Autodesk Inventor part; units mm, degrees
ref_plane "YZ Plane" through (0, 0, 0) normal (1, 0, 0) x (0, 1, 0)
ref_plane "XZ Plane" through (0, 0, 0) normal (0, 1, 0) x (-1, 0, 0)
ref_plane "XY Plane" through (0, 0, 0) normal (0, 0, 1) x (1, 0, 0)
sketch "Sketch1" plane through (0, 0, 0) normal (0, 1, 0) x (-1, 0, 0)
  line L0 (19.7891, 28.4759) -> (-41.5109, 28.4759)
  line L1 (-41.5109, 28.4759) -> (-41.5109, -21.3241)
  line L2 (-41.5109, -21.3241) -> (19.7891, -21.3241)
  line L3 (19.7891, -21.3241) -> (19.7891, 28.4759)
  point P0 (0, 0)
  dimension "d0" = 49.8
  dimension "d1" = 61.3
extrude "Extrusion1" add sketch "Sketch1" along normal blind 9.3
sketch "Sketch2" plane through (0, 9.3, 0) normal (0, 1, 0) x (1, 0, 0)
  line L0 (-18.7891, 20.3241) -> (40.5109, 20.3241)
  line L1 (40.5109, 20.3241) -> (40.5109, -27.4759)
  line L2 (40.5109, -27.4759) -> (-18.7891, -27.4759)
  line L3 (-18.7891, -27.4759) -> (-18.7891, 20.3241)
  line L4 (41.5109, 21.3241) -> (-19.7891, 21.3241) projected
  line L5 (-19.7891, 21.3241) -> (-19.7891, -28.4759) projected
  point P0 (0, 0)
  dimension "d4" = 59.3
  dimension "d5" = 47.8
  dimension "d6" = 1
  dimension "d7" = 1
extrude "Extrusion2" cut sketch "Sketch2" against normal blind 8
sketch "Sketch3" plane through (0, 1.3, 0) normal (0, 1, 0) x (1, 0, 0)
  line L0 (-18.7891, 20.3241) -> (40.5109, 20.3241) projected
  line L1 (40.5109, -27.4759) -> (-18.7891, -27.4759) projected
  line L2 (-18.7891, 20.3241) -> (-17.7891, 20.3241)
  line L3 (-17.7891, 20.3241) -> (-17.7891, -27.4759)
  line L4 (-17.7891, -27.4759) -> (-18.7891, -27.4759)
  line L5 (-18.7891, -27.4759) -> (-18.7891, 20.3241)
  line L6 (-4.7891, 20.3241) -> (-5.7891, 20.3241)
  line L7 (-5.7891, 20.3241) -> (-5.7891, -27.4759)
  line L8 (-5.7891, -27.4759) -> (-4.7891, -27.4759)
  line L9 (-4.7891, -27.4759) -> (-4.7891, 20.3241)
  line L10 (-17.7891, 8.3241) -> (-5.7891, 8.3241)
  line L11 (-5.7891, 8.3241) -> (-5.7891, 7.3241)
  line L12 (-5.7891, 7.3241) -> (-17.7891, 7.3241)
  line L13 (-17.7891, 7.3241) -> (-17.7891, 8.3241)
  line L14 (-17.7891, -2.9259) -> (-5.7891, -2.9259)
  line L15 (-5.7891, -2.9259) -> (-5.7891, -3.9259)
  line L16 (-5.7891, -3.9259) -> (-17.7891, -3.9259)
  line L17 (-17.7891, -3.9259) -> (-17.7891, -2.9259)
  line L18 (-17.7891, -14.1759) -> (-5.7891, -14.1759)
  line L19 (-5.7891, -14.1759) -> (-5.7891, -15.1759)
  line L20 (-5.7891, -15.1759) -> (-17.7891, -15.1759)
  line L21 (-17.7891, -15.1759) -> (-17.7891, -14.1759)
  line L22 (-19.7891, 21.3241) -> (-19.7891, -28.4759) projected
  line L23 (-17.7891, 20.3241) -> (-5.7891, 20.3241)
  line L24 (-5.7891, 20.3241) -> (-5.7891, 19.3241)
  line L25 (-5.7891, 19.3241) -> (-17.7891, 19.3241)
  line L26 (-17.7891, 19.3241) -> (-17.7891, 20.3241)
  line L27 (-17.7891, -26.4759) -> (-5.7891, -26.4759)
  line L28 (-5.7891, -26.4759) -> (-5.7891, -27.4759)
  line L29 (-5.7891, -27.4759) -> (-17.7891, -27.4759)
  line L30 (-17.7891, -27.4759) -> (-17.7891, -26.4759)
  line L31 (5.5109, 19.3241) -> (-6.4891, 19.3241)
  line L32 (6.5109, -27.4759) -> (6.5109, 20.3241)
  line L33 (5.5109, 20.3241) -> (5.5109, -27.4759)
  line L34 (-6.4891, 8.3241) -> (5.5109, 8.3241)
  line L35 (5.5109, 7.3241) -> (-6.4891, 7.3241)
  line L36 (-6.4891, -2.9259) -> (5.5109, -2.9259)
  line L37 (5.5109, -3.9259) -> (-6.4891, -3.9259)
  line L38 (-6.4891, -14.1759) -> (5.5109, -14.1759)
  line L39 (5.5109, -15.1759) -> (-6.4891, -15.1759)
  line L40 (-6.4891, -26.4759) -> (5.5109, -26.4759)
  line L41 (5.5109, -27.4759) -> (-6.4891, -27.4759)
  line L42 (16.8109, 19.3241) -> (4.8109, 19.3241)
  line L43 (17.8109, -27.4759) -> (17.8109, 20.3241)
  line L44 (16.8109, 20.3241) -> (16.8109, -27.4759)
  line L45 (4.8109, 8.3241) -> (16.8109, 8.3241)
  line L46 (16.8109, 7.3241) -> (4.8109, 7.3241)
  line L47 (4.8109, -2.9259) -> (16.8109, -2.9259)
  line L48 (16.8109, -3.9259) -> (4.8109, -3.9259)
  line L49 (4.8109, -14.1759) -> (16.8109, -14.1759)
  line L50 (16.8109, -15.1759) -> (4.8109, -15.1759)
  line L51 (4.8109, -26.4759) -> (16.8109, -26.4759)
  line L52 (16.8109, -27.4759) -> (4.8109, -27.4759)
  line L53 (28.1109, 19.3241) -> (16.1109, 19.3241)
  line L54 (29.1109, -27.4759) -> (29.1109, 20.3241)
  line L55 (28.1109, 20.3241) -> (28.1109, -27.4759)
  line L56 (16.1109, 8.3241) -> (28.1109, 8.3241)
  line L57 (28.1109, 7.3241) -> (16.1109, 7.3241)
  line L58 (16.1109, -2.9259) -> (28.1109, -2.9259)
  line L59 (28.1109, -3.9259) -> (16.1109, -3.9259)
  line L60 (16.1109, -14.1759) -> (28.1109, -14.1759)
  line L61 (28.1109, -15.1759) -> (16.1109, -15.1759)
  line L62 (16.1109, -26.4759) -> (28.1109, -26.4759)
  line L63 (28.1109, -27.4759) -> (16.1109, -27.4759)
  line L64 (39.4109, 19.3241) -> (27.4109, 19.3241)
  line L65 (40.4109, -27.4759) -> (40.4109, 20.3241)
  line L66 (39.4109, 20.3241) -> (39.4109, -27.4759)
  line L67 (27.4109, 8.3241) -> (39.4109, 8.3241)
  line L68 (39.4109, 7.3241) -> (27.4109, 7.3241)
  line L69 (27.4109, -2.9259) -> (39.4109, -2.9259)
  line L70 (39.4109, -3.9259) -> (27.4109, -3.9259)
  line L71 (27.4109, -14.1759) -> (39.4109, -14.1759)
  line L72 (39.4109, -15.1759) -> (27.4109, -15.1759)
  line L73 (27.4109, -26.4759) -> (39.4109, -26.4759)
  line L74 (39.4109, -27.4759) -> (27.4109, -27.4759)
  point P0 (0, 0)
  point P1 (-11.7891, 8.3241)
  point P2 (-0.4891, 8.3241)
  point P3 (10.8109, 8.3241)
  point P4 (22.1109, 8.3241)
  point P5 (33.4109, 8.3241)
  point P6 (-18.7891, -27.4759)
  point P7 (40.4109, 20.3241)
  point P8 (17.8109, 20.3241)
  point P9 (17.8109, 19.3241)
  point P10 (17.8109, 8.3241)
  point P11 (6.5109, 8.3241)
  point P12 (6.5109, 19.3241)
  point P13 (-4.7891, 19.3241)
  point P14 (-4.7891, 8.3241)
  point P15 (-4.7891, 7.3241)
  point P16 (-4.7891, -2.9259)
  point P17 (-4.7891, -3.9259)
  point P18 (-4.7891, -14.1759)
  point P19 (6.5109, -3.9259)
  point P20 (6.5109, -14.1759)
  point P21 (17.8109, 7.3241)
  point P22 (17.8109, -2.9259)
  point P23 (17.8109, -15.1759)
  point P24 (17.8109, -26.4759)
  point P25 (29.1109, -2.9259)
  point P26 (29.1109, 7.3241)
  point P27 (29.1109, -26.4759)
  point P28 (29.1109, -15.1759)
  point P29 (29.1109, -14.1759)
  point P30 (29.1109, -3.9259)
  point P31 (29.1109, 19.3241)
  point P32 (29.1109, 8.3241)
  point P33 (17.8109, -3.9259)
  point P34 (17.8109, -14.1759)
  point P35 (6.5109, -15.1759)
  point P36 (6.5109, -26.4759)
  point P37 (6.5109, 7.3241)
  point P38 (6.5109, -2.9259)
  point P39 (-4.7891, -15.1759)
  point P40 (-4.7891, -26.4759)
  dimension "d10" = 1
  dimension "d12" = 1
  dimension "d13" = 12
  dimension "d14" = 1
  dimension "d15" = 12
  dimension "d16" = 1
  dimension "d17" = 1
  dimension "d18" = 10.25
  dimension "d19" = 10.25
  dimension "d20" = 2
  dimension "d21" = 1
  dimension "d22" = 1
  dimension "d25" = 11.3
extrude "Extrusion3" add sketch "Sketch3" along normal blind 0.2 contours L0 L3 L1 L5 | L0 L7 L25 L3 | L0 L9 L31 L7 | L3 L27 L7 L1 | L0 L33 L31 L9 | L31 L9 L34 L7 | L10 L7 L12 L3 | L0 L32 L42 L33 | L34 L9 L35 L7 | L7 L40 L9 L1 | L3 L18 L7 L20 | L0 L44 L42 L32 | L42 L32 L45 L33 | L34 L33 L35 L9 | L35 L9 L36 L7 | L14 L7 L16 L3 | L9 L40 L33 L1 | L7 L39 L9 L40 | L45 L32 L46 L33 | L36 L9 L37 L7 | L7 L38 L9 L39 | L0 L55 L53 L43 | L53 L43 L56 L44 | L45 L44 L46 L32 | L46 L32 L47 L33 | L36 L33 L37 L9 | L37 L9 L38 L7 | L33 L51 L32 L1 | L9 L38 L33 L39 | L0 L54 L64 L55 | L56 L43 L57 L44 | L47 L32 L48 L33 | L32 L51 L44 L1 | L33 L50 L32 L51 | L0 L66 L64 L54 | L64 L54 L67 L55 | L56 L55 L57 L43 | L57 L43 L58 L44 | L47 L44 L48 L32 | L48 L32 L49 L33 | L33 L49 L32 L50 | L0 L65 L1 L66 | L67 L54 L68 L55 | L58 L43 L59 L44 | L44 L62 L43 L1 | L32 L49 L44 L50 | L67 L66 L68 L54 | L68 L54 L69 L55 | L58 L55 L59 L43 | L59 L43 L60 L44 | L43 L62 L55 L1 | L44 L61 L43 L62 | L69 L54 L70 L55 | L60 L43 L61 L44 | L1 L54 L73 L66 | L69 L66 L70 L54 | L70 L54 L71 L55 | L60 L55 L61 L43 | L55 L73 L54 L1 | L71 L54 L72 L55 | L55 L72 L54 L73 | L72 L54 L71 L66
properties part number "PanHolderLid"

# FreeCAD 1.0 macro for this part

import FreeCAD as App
import Part
import Sketcher
from FreeCAD import Vector
Q = App.Units.Quantity

doc = App.newDocument("Part")
body = doc.addObject("PartDesign::Body", "Body")

# Sketch on XZ plane
sketch1 = doc.addObject("Sketcher::SketchObject", "Sketch")
body.addObject(sketch1)
sketch1.AttachmentSupport = (doc.XZ_Plane, [""])
sketch1.MapMode = "FlatFace"
sketch1.addGeometry([
    Part.LineSegment(Vector(-19.7891, -21.3241, 0), Vector(-19.7891, 28.4759, 0)),
    Part.LineSegment(Vector(-19.7891, 28.4759, 0), Vector(41.5109, 28.4759, 0)),
    Part.LineSegment(Vector(41.5109, 28.4759, 0), Vector(41.5109, -21.3241, 0)),
    Part.LineSegment(Vector(41.5109, -21.3241, 0), Vector(-19.7891, -21.3241, 0)),
], False)
sketch1.addConstraint([
    Sketcher.Constraint("Coincident", 0, 2, 1, 1),
    Sketcher.Constraint("Coincident", 1, 2, 2, 1),
    Sketcher.Constraint("Coincident", 2, 2, 3, 1),
    Sketcher.Constraint("Coincident", 3, 2, 0, 1),
    Sketcher.Constraint("Vertical", 0),
    Sketcher.Constraint("Horizontal", 1),
    Sketcher.Constraint("Vertical", 2),
    Sketcher.Constraint("Horizontal", 3),
    Sketcher.Constraint("DistanceX", 1, 1, 1, 2, Q("61.3 mm")),
    Sketcher.Constraint("DistanceY", 0, 1, 0, 2, Q("49.8 mm")),
    Sketcher.Constraint("DistanceX", 0, 2, -1, 1, Q("19.789 mm")),
    Sketcher.Constraint("DistanceY", -1, 1, 0, 2, Q("28.476 mm")),
])
pad1 = doc.addObject("PartDesign::Pad", "Pad")
body.addObject(pad1)
pad1.Profile = sketch1
pad1.Length = 9.3
pad1.Reversed = True

# Sketch on XZ plane
sketch2 = doc.addObject("Sketcher::SketchObject", "Sketch001")
body.addObject(sketch2)
sketch2.AttachmentSupport = (doc.XZ_Plane, [""])
sketch2.MapMode = "FlatFace"
sketch2.AttachmentOffset = App.Placement(Vector(0, 0, -9.3), App.Rotation())
sketch2.addGeometry([
    Part.LineSegment(Vector(40.5109, -20.3241, 0), Vector(-18.7891, -20.3241, 0)),
    Part.LineSegment(Vector(-18.7891, -20.3241, 0), Vector(-18.7891, 27.4759, 0)),
    Part.LineSegment(Vector(-18.7891, 27.4759, 0), Vector(40.5109, 27.4759, 0)),
    Part.LineSegment(Vector(40.5109, 27.4759, 0), Vector(40.5109, -20.3241, 0)),
], False)
sketch2.addConstraint([
    Sketcher.Constraint("Coincident", 0, 2, 1, 1),
    Sketcher.Constraint("Coincident", 1, 2, 2, 1),
    Sketcher.Constraint("Coincident", 2, 2, 3, 1),
    Sketcher.Constraint("Coincident", 3, 2, 0, 1),
    Sketcher.Constraint("Horizontal", 0),
    Sketcher.Constraint("Vertical", 1),
    Sketcher.Constraint("Horizontal", 2),
    Sketcher.Constraint("Vertical", 3),
    Sketcher.Constraint("DistanceX", 0, 2, 0, 1, Q("59.3 mm")),
    Sketcher.Constraint("DistanceY", 1, 1, 1, 2, Q("47.8 mm")),
    Sketcher.Constraint("DistanceX", 0, 2, -1, 1, Q("18.789 mm")),
    Sketcher.Constraint("DistanceY", 0, 2, -1, 1, Q("20.324 mm")),
])
pocket1 = doc.addObject("PartDesign::Pocket", "Pocket")
body.addObject(pocket1)
pocket1.Profile = sketch2
pocket1.Length = 8
pocket1.Reversed = True

# Sketch on XZ plane
sketch3 = doc.addObject("Sketcher::SketchObject", "Sketch002")
body.addObject(sketch3)
sketch3.AttachmentSupport = (doc.XZ_Plane, [""])
sketch3.MapMode = "FlatFace"
sketch3.AttachmentOffset = App.Placement(Vector(0, 0, -1.3), App.Rotation())
sketch3.addGeometry([
    Part.LineSegment(Vector(17.8109, -19.3241, 0), Vector(16.8109, -19.3241, 0)),  # 0
    Part.LineSegment(Vector(16.8109, -19.3241, 0), Vector(16.8109, -20.3241, 0)),  # 1
    Part.LineSegment(Vector(16.8109, -20.3241, 0), Vector(-18.7891, -20.3241, 0)),  # 2
    Part.LineSegment(Vector(-18.7891, -20.3241, 0), Vector(-18.7891, 27.4759, 0)),  # 3
    Part.LineSegment(Vector(-18.7891, 27.4759, 0), Vector(40.4109, 27.4759, 0)),  # 4
    Part.LineSegment(Vector(40.4109, 27.4759, 0), Vector(40.4109, -20.3241, 0)),  # 5
    Part.LineSegment(Vector(40.4109, -20.3241, 0), Vector(17.8109, -20.3241, 0)),  # 6
    Part.LineSegment(Vector(17.8109, -20.3241, 0), Vector(17.8109, -19.3241, 0)),  # 7
    Part.LineSegment(Vector(17.8109, -19.3241, 0), Vector(28.1109, -19.3241, 0)),  # 8
    Part.LineSegment(Vector(28.1109, -19.3241, 0), Vector(28.1109, -8.3241, 0)),  # 9
    Part.LineSegment(Vector(28.1109, -8.3241, 0), Vector(17.8109, -8.3241, 0)),  # 10
    Part.LineSegment(Vector(17.8109, -8.3241, 0), Vector(17.8109, -19.3241, 0)),  # 11
    Part.LineSegment(Vector(16.8109, -19.3241, 0), Vector(16.8109, -8.3241, 0)),  # 12
    Part.LineSegment(Vector(16.8109, -8.3241, 0), Vector(6.5109, -8.3241, 0)),  # 13
    Part.LineSegment(Vector(6.5109, -8.3241, 0), Vector(6.5109, -19.3241, 0)),  # 14
    Part.LineSegment(Vector(6.5109, -19.3241, 0), Vector(16.8109, -19.3241, 0)),  # 15
    Part.LineSegment(Vector(-17.7891, -8.3241, 0), Vector(-17.7891, -19.3241, 0)),  # 16
    Part.LineSegment(Vector(-17.7891, -19.3241, 0), Vector(-5.7891, -19.3241, 0)),  # 17
    Part.LineSegment(Vector(-5.7891, -19.3241, 0), Vector(-5.7891, -8.3241, 0)),  # 18
    Part.LineSegment(Vector(-5.7891, -8.3241, 0), Vector(-17.7891, -8.3241, 0)),  # 19
    Part.LineSegment(Vector(-17.7891, 2.9259, 0), Vector(-17.7891, -7.3241, 0)),  # 20
    Part.LineSegment(Vector(-17.7891, -7.3241, 0), Vector(-5.7891, -7.3241, 0)),  # 21
    Part.LineSegment(Vector(-5.7891, -7.3241, 0), Vector(-5.7891, 2.9259, 0)),  # 22
    Part.LineSegment(Vector(-5.7891, 2.9259, 0), Vector(-17.7891, 2.9259, 0)),  # 23
    Part.LineSegment(Vector(-17.7891, 14.1759, 0), Vector(-17.7891, 3.9259, 0)),  # 24
    Part.LineSegment(Vector(-17.7891, 3.9259, 0), Vector(-5.7891, 3.9259, 0)),  # 25
    Part.LineSegment(Vector(-5.7891, 3.9259, 0), Vector(-5.7891, 14.1759, 0)),  # 26
    Part.LineSegment(Vector(-5.7891, 14.1759, 0), Vector(-17.7891, 14.1759, 0)),  # 27
    Part.LineSegment(Vector(-17.7891, 26.4759, 0), Vector(-17.7891, 15.1759, 0)),  # 28
    Part.LineSegment(Vector(-17.7891, 15.1759, 0), Vector(-5.7891, 15.1759, 0)),  # 29
    Part.LineSegment(Vector(-5.7891, 15.1759, 0), Vector(-5.7891, 26.4759, 0)),  # 30
    Part.LineSegment(Vector(-5.7891, 26.4759, 0), Vector(-17.7891, 26.4759, 0)),  # 31
    Part.LineSegment(Vector(5.5109, -19.3241, 0), Vector(5.5109, -8.3241, 0)),  # 32
    Part.LineSegment(Vector(5.5109, -8.3241, 0), Vector(-4.7891, -8.3241, 0)),  # 33
    Part.LineSegment(Vector(-4.7891, -8.3241, 0), Vector(-4.7891, -19.3241, 0)),  # 34
    Part.LineSegment(Vector(-4.7891, -19.3241, 0), Vector(5.5109, -19.3241, 0)),  # 35
    Part.LineSegment(Vector(5.5109, -7.3241, 0), Vector(5.5109, 2.9259, 0)),  # 36
    Part.LineSegment(Vector(5.5109, 2.9259, 0), Vector(-4.7891, 2.9259, 0)),  # 37
    Part.LineSegment(Vector(-4.7891, 2.9259, 0), Vector(-4.7891, -7.3241, 0)),  # 38
    Part.LineSegment(Vector(-4.7891, -7.3241, 0), Vector(5.5109, -7.3241, 0)),  # 39
    Part.LineSegment(Vector(5.5109, 3.9259, 0), Vector(5.5109, 14.1759, 0)),  # 40
    Part.LineSegment(Vector(5.5109, 14.1759, 0), Vector(-4.7891, 14.1759, 0)),  # 41
    Part.LineSegment(Vector(-4.7891, 14.1759, 0), Vector(-4.7891, 3.9259, 0)),  # 42
    Part.LineSegment(Vector(-4.7891, 3.9259, 0), Vector(5.5109, 3.9259, 0)),  # 43
    Part.LineSegment(Vector(-4.7891, 26.4759, 0), Vector(-4.7891, 15.1759, 0)),  # 44
    Part.LineSegment(Vector(-4.7891, 15.1759, 0), Vector(5.5109, 15.1759, 0)),  # 45
    Part.LineSegment(Vector(5.5109, 15.1759, 0), Vector(5.5109, 26.4759, 0)),  # 46
    Part.LineSegment(Vector(5.5109, 26.4759, 0), Vector(-4.7891, 26.4759, 0)),  # 47
    Part.LineSegment(Vector(16.8109, -7.3241, 0), Vector(16.8109, 2.9259, 0)),  # 48
    Part.LineSegment(Vector(16.8109, 2.9259, 0), Vector(6.5109, 2.9259, 0)),  # 49
    Part.LineSegment(Vector(6.5109, 2.9259, 0), Vector(6.5109, -7.3241, 0)),  # 50
    Part.LineSegment(Vector(6.5109, -7.3241, 0), Vector(16.8109, -7.3241, 0)),  # 51
    Part.LineSegment(Vector(16.8109, 3.9259, 0), Vector(16.8109, 14.1759, 0)),  # 52
    Part.LineSegment(Vector(16.8109, 14.1759, 0), Vector(6.5109, 14.1759, 0)),  # 53
    Part.LineSegment(Vector(6.5109, 14.1759, 0), Vector(6.5109, 3.9259, 0)),  # 54
    Part.LineSegment(Vector(6.5109, 3.9259, 0), Vector(16.8109, 3.9259, 0)),  # 55
    Part.LineSegment(Vector(6.5109, 26.4759, 0), Vector(6.5109, 15.1759, 0)),  # 56
    Part.LineSegment(Vector(6.5109, 15.1759, 0), Vector(16.8109, 15.1759, 0)),  # 57
    Part.LineSegment(Vector(16.8109, 15.1759, 0), Vector(16.8109, 26.4759, 0)),  # 58
    Part.LineSegment(Vector(16.8109, 26.4759, 0), Vector(6.5109, 26.4759, 0)),  # 59
    Part.LineSegment(Vector(28.1109, -7.3241, 0), Vector(28.1109, 2.9259, 0)),  # 60
    Part.LineSegment(Vector(28.1109, 2.9259, 0), Vector(17.8109, 2.9259, 0)),  # 61
    Part.LineSegment(Vector(17.8109, 2.9259, 0), Vector(17.8109, -7.3241, 0)),  # 62
    Part.LineSegment(Vector(17.8109, -7.3241, 0), Vector(28.1109, -7.3241, 0)),  # 63
    Part.LineSegment(Vector(28.1109, 3.9259, 0), Vector(28.1109, 14.1759, 0)),  # 64
    Part.LineSegment(Vector(28.1109, 14.1759, 0), Vector(17.8109, 14.1759, 0)),  # 65
    Part.LineSegment(Vector(17.8109, 14.1759, 0), Vector(17.8109, 3.9259, 0)),  # 66
    Part.LineSegment(Vector(17.8109, 3.9259, 0), Vector(28.1109, 3.9259, 0)),  # 67
    Part.LineSegment(Vector(28.1109, 15.1759, 0), Vector(28.1109, 26.4759, 0)),  # 68
    Part.LineSegment(Vector(28.1109, 26.4759, 0), Vector(17.8109, 26.4759, 0)),  # 69
    Part.LineSegment(Vector(17.8109, 26.4759, 0), Vector(17.8109, 15.1759, 0)),  # 70
    Part.LineSegment(Vector(17.8109, 15.1759, 0), Vector(28.1109, 15.1759, 0)),  # 71
    Part.LineSegment(Vector(29.1109, -8.3241, 0), Vector(29.1109, -19.3241, 0)),  # 72
    Part.LineSegment(Vector(29.1109, -19.3241, 0), Vector(39.4109, -19.3241, 0)),  # 73
    Part.LineSegment(Vector(39.4109, -19.3241, 0), Vector(39.4109, -8.3241, 0)),  # 74
    Part.LineSegment(Vector(39.4109, -8.3241, 0), Vector(29.1109, -8.3241, 0)),  # 75
    Part.LineSegment(Vector(29.1109, -7.3241, 0), Vector(39.4109, -7.3241, 0)),  # 76
    Part.LineSegment(Vector(39.4109, -7.3241, 0), Vector(39.4109, 2.9259, 0)),  # 77
    Part.LineSegment(Vector(39.4109, 2.9259, 0), Vector(29.1109, 2.9259, 0)),  # 78
    Part.LineSegment(Vector(29.1109, 2.9259, 0), Vector(29.1109, -7.3241, 0)),  # 79
    Part.LineSegment(Vector(29.1109, 3.9259, 0), Vector(39.4109, 3.9259, 0)),  # 80
    Part.LineSegment(Vector(39.4109, 3.9259, 0), Vector(39.4109, 14.1759, 0)),  # 81
    Part.LineSegment(Vector(39.4109, 14.1759, 0), Vector(29.1109, 14.1759, 0)),  # 82
    Part.LineSegment(Vector(29.1109, 14.1759, 0), Vector(29.1109, 3.9259, 0)),  # 83
    Part.LineSegment(Vector(29.1109, 15.1759, 0), Vector(39.4109, 15.1759, 0)),  # 84
    Part.LineSegment(Vector(39.4109, 15.1759, 0), Vector(39.4109, 26.4759, 0)),  # 85
    Part.LineSegment(Vector(39.4109, 26.4759, 0), Vector(29.1109, 26.4759, 0)),  # 86
    Part.LineSegment(Vector(29.1109, 26.4759, 0), Vector(29.1109, 15.1759, 0)),  # 87
], False)
sketch3.addConstraint([
    Sketcher.Constraint("Coincident", 0, 2, 1, 1),
    Sketcher.Constraint("Coincident", 1, 2, 2, 1),
    Sketcher.Constraint("Coincident", 2, 2, 3, 1),
    Sketcher.Constraint("Coincident", 3, 2, 4, 1),
    Sketcher.Constraint("Coincident", 4, 2, 5, 1),
    Sketcher.Constraint("Coincident", 5, 2, 6, 1),
    Sketcher.Constraint("Coincident", 6, 2, 7, 1),
    Sketcher.Constraint("Coincident", 7, 2, 0, 1),
    Sketcher.Constraint("Coincident", 8, 2, 9, 1),
    Sketcher.Constraint("Coincident", 9, 2, 10, 1),
    Sketcher.Constraint("Coincident", 10, 2, 11, 1),
    Sketcher.Constraint("Coincident", 11, 2, 8, 1),
    Sketcher.Constraint("Coincident", 12, 2, 13, 1),
    Sketcher.Constraint("Coincident", 13, 2, 14, 1),
    Sketcher.Constraint("Coincident", 14, 2, 15, 1),
    Sketcher.Constraint("Coincident", 15, 2, 12, 1),
    Sketcher.Constraint("Coincident", 16, 2, 17, 1),
    Sketcher.Constraint("Coincident", 17, 2, 18, 1),
    Sketcher.Constraint("Coincident", 18, 2, 19, 1),
    Sketcher.Constraint("Coincident", 19, 2, 16, 1),
    Sketcher.Constraint("Coincident", 20, 2, 21, 1),
    Sketcher.Constraint("Coincident", 21, 2, 22, 1),
    Sketcher.Constraint("Coincident", 22, 2, 23, 1),
    Sketcher.Constraint("Coincident", 23, 2, 20, 1),
    Sketcher.Constraint("Coincident", 24, 2, 25, 1),
    Sketcher.Constraint("Coincident", 25, 2, 26, 1),
    Sketcher.Constraint("Coincident", 26, 2, 27, 1),
    Sketcher.Constraint("Coincident", 27, 2, 24, 1),
    Sketcher.Constraint("Coincident", 28, 2, 29, 1),
    Sketcher.Constraint("Coincident", 29, 2, 30, 1),
    Sketcher.Constraint("Coincident", 30, 2, 31, 1),
    Sketcher.Constraint("Coincident", 31, 2, 28, 1),
    Sketcher.Constraint("Coincident", 32, 2, 33, 1),
    Sketcher.Constraint("Coincident", 33, 2, 34, 1),
    Sketcher.Constraint("Coincident", 34, 2, 35, 1),
    Sketcher.Constraint("Coincident", 35, 2, 32, 1),
    Sketcher.Constraint("Coincident", 36, 2, 37, 1),
    Sketcher.Constraint("Coincident", 37, 2, 38, 1),
    Sketcher.Constraint("Coincident", 38, 2, 39, 1),
    Sketcher.Constraint("Coincident", 39, 2, 36, 1),
    Sketcher.Constraint("Coincident", 40, 2, 41, 1),
    Sketcher.Constraint("Coincident", 41, 2, 42, 1),
    Sketcher.Constraint("Coincident", 42, 2, 43, 1),
    Sketcher.Constraint("Coincident", 43, 2, 40, 1),
    Sketcher.Constraint("Coincident", 44, 2, 45, 1),
    Sketcher.Constraint("Coincident", 45, 2, 46, 1),
    Sketcher.Constraint("Coincident", 46, 2, 47, 1),
    Sketcher.Constraint("Coincident", 47, 2, 44, 1),
    Sketcher.Constraint("Coincident", 48, 2, 49, 1),
    Sketcher.Constraint("Coincident", 49, 2, 50, 1),
    Sketcher.Constraint("Coincident", 50, 2, 51, 1),
    Sketcher.Constraint("Coincident", 51, 2, 48, 1),
    Sketcher.Constraint("Coincident", 52, 2, 53, 1),
    Sketcher.Constraint("Coincident", 53, 2, 54, 1),
    Sketcher.Constraint("Coincident", 54, 2, 55, 1),
    Sketcher.Constraint("Coincident", 55, 2, 52, 1),
    Sketcher.Constraint("Coincident", 56, 2, 57, 1),
    Sketcher.Constraint("Coincident", 57, 2, 58, 1),
    Sketcher.Constraint("Coincident", 58, 2, 59, 1),
    Sketcher.Constraint("Coincident", 59, 2, 56, 1),
    Sketcher.Constraint("Coincident", 60, 2, 61, 1),
    Sketcher.Constraint("Coincident", 61, 2, 62, 1),
    Sketcher.Constraint("Coincident", 62, 2, 63, 1),
    Sketcher.Constraint("Coincident", 63, 2, 60, 1),
    Sketcher.Constraint("Coincident", 64, 2, 65, 1),
    Sketcher.Constraint("Coincident", 65, 2, 66, 1),
    Sketcher.Constraint("Coincident", 66, 2, 67, 1),
    Sketcher.Constraint("Coincident", 67, 2, 64, 1),
    Sketcher.Constraint("Coincident", 68, 2, 69, 1),
    Sketcher.Constraint("Coincident", 69, 2, 70, 1),
    Sketcher.Constraint("Coincident", 70, 2, 71, 1),
    Sketcher.Constraint("Coincident", 71, 2, 68, 1),
    Sketcher.Constraint("Coincident", 72, 2, 73, 1),
    Sketcher.Constraint("Coincident", 73, 2, 74, 1),
    Sketcher.Constraint("Coincident", 74, 2, 75, 1),
    Sketcher.Constraint("Coincident", 75, 2, 72, 1),
    Sketcher.Constraint("Coincident", 76, 2, 77, 1),
    Sketcher.Constraint("Coincident", 77, 2, 78, 1),
    Sketcher.Constraint("Coincident", 78, 2, 79, 1),
    Sketcher.Constraint("Coincident", 79, 2, 76, 1),
    Sketcher.Constraint("Coincident", 80, 2, 81, 1),
    Sketcher.Constraint("Coincident", 81, 2, 82, 1),
    Sketcher.Constraint("Coincident", 82, 2, 83, 1),
    Sketcher.Constraint("Coincident", 83, 2, 80, 1),
    Sketcher.Constraint("Coincident", 84, 2, 85, 1),
    Sketcher.Constraint("Coincident", 85, 2, 86, 1),
    Sketcher.Constraint("Coincident", 86, 2, 87, 1),
    Sketcher.Constraint("Coincident", 87, 2, 84, 1),
    Sketcher.Constraint("Horizontal", 0),
    Sketcher.Constraint("Vertical", 1),
    Sketcher.Constraint("Horizontal", 2),
    Sketcher.Constraint("Vertical", 3),
    Sketcher.Constraint("Horizontal", 4),
    Sketcher.Constraint("Vertical", 5),
    Sketcher.Constraint("Horizontal", 6),
    Sketcher.Constraint("Vertical", 7),
    Sketcher.Constraint("Horizontal", 8),
    Sketcher.Constraint("Vertical", 9),
    Sketcher.Constraint("Horizontal", 10),
    Sketcher.Constraint("Vertical", 11),
    Sketcher.Constraint("Vertical", 12),
    Sketcher.Constraint("Horizontal", 13),
    Sketcher.Constraint("Vertical", 14),
    Sketcher.Constraint("Horizontal", 15),
    Sketcher.Constraint("Vertical", 16),
    Sketcher.Constraint("Horizontal", 17),
    Sketcher.Constraint("Vertical", 18),
    Sketcher.Constraint("Horizontal", 19),
    Sketcher.Constraint("Vertical", 20),
    Sketcher.Constraint("Horizontal", 21),
    Sketcher.Constraint("Vertical", 22),
    Sketcher.Constraint("Horizontal", 23),
    Sketcher.Constraint("Vertical", 24),
    Sketcher.Constraint("Horizontal", 25),
    Sketcher.Constraint("Vertical", 26),
    Sketcher.Constraint("Horizontal", 27),
    Sketcher.Constraint("Vertical", 28),
    Sketcher.Constraint("Horizontal", 29),
    Sketcher.Constraint("Vertical", 30),
    Sketcher.Constraint("Horizontal", 31),
    Sketcher.Constraint("Vertical", 32),
    Sketcher.Constraint("Horizontal", 33),
    Sketcher.Constraint("Vertical", 34),
    Sketcher.Constraint("Horizontal", 35),
    Sketcher.Constraint("Vertical", 36),
    Sketcher.Constraint("Horizontal", 37),
    Sketcher.Constraint("Vertical", 38),
    Sketcher.Constraint("Horizontal", 39),
    Sketcher.Constraint("Vertical", 40),
    Sketcher.Constraint("Horizontal", 41),
    Sketcher.Constraint("Vertical", 42),
    Sketcher.Constraint("Horizontal", 43),
    Sketcher.Constraint("Vertical", 44),
    Sketcher.Constraint("Horizontal", 45),
    Sketcher.Constraint("Vertical", 46),
    Sketcher.Constraint("Horizontal", 47),
    Sketcher.Constraint("Vertical", 48),
    Sketcher.Constraint("Horizontal", 49),
    Sketcher.Constraint("Vertical", 50),
    Sketcher.Constraint("Horizontal", 51),
    Sketcher.Constraint("Vertical", 52),
    Sketcher.Constraint("Horizontal", 53),
    Sketcher.Constraint("Vertical", 54),
    Sketcher.Constraint("Horizontal", 55),
    Sketcher.Constraint("Vertical", 56),
    Sketcher.Constraint("Horizontal", 57),
    Sketcher.Constraint("Vertical", 58),
    Sketcher.Constraint("Horizontal", 59),
    Sketcher.Constraint("Vertical", 60),
    Sketcher.Constraint("Horizontal", 61),
    Sketcher.Constraint("Vertical", 62),
    Sketcher.Constraint("Horizontal", 63),
    Sketcher.Constraint("Vertical", 64),
    Sketcher.Constraint("Horizontal", 65),
    Sketcher.Constraint("Vertical", 66),
    Sketcher.Constraint("Horizontal", 67),
    Sketcher.Constraint("Vertical", 68),
    Sketcher.Constraint("Horizontal", 69),
    Sketcher.Constraint("Vertical", 70),
    Sketcher.Constraint("Horizontal", 71),
    Sketcher.Constraint("Vertical", 72),
    Sketcher.Constraint("Horizontal", 73),
    Sketcher.Constraint("Vertical", 74),
    Sketcher.Constraint("Horizontal", 75),
    Sketcher.Constraint("Horizontal", 76),
    Sketcher.Constraint("Vertical", 77),
    Sketcher.Constraint("Horizontal", 78),
    Sketcher.Constraint("Vertical", 79),
    Sketcher.Constraint("Horizontal", 80),
    Sketcher.Constraint("Vertical", 81),
    Sketcher.Constraint("Horizontal", 82),
    Sketcher.Constraint("Vertical", 83),
    Sketcher.Constraint("Horizontal", 84),
    Sketcher.Constraint("Vertical", 85),
    Sketcher.Constraint("Horizontal", 86),
    Sketcher.Constraint("Vertical", 87),
    Sketcher.Constraint("Coincident", 11, 2, 7, 2),
    Sketcher.Constraint("Coincident", 15, 2, 0, 2),
    Sketcher.Constraint("Horizontal", 2, 2, 5, 2),
    Sketcher.Constraint("Horizontal", 10, 2, 12, 2),
    Sketcher.Constraint("Horizontal", 15, 2, 16, 2),
    Sketcher.Constraint("Horizontal", 13, 2, 18, 2),
    Sketcher.Constraint("Horizontal", 19, 2, 32, 2),
    Sketcher.Constraint("Horizontal", 17, 2, 34, 2),
    Sketcher.Constraint("Horizontal", 23, 2, 36, 2),
    Sketcher.Constraint("Horizontal", 21, 2, 38, 2),
    Sketcher.Constraint("Horizontal", 27, 2, 40, 2),
    Sketcher.Constraint("Horizontal", 25, 2, 42, 2),
    Sketcher.Constraint("Horizontal", 29, 2, 44, 2),
    Sketcher.Constraint("Horizontal", 31, 2, 46, 2),
    Sketcher.Constraint("Horizontal", 37, 2, 48, 2),
    Sketcher.Constraint("Horizontal", 39, 2, 50, 2),
    Sketcher.Constraint("Horizontal", 41, 2, 52, 2),
    Sketcher.Constraint("Horizontal", 43, 2, 54, 2),
    Sketcher.Constraint("Horizontal", 45, 2, 56, 2),
    Sketcher.Constraint("Horizontal", 47, 2, 58, 2),
    Sketcher.Constraint("Horizontal", 49, 2, 60, 2),
    Sketcher.Constraint("Horizontal", 51, 2, 62, 2),
    Sketcher.Constraint("Horizontal", 53, 2, 64, 2),
    Sketcher.Constraint("Horizontal", 55, 2, 66, 2),
    Sketcher.Constraint("Horizontal", 59, 2, 68, 2),
    Sketcher.Constraint("Horizontal", 57, 2, 70, 2),
    Sketcher.Constraint("Horizontal", 35, 2, 72, 2),
    Sketcher.Constraint("Horizontal", 33, 2, 74, 2),
    Sketcher.Constraint("Horizontal", 63, 2, 76, 2),
    Sketcher.Constraint("Horizontal", 61, 2, 77, 2),
    Sketcher.Constraint("Horizontal", 67, 2, 80, 2),
    Sketcher.Constraint("Horizontal", 65, 2, 81, 2),
    Sketcher.Constraint("Horizontal", 71, 2, 84, 2),
    Sketcher.Constraint("Horizontal", 69, 2, 85, 2),
    Sketcher.Constraint("Vertical", 19, 2, 20, 2),
    Sketcher.Constraint("Vertical", 18, 2, 21, 2),
    Sketcher.Constraint("Vertical", 23, 2, 24, 2),
    Sketcher.Constraint("Vertical", 22, 2, 25, 2),
    Sketcher.Constraint("Vertical", 27, 2, 28, 2),
    Sketcher.Constraint("Vertical", 26, 2, 29, 2),
    Sketcher.Constraint("Vertical", 35, 2, 36, 2),
    Sketcher.Constraint("Vertical", 34, 2, 37, 2),
    Sketcher.Constraint("Vertical", 39, 2, 40, 2),
    Sketcher.Constraint("Vertical", 38, 2, 41, 2),
    Sketcher.Constraint("Vertical", 42, 2, 44, 2),
    Sketcher.Constraint("Vertical", 43, 2, 45, 2),
    Sketcher.Constraint("Vertical", 15, 2, 48, 2),
    Sketcher.Constraint("Vertical", 14, 2, 49, 2),
    Sketcher.Constraint("Vertical", 51, 2, 52, 2),
    Sketcher.Constraint("Vertical", 50, 2, 53, 2),
    Sketcher.Constraint("Vertical", 54, 2, 56, 2),
    Sketcher.Constraint("Vertical", 55, 2, 57, 2),
    Sketcher.Constraint("Vertical", 9, 2, 60, 2),
    Sketcher.Constraint("Vertical", 11, 2, 61, 2),
    Sketcher.Constraint("Vertical", 63, 2, 64, 2),
    Sketcher.Constraint("Vertical", 62, 2, 65, 2),
    Sketcher.Constraint("Vertical", 67, 2, 68, 2),
    Sketcher.Constraint("Vertical", 66, 2, 69, 2),
    Sketcher.Constraint("Vertical", 74, 2, 76, 2),
    Sketcher.Constraint("Vertical", 75, 2, 78, 2),
    Sketcher.Constraint("Vertical", 77, 2, 80, 2),
    Sketcher.Constraint("Vertical", 79, 2, 82, 2),
    Sketcher.Constraint("Vertical", 81, 2, 84, 2),
    Sketcher.Constraint("Vertical", 83, 2, 86, 2),
    Sketcher.Constraint("Equal", 10, 13),
    Sketcher.Constraint("Equal", 15, 33),
    Sketcher.Constraint("Equal", 71, 73),
    Sketcher.Constraint("Equal", 0, 1),
    Sketcher.Constraint("Equal", 22, 24),
    Sketcher.Constraint("DistanceX", 0, 2, 0, 1, Q("1 mm")),
    Sketcher.Constraint("DistanceX", 17, 1, 17, 2, Q("12 mm")),
    Sketcher.Constraint("DistanceY", 28, 2, 28, 1, Q("11.3 mm")),
    Sketcher.Constraint("DistanceY", 20, 2, 20, 1, Q("10.25 mm")),
    Sketcher.Constraint("DistanceY", 9, 1, 9, 2, Q("11 mm")),
    Sketcher.Constraint("DistanceX", 2, 2, 2, 1, Q("35.6 mm")),
    Sketcher.Constraint("DistanceX", 4, 1, 4, 2, Q("59.2 mm")),
    Sketcher.Constraint("DistanceX", 8, 1, 8, 2, Q("10.3 mm")),
    Sketcher.Constraint("DistanceY", 3, 1, 3, 2, Q("47.8 mm")),
    Sketcher.Constraint("DistanceX", -1, 1, 0, 2, Q("16.811 mm")),
    Sketcher.Constraint("DistanceY", 0, 2, -1, 1, Q("19.324 mm")),
    Sketcher.Constraint("DistanceX", 16, 2, -1, 1, Q("17.789 mm")),
    Sketcher.Constraint("DistanceY", 20, 2, -1, 1, Q("7.324 mm")),
    Sketcher.Constraint("DistanceY", -1, 1, 24, 2, Q("3.926 mm")),
    Sketcher.Constraint("DistanceY", -1, 1, 28, 2, Q("15.176 mm")),
    Sketcher.Constraint("DistanceX", -1, 1, 32, 2, Q("5.511 mm")),
    Sketcher.Constraint("DistanceX", -1, 1, 72, 2, Q("29.111 mm")),
])
pad2 = doc.addObject("PartDesign::Pad", "Pad001")
body.addObject(pad2)
pad2.Profile = sketch3
pad2.Length = 0.2
pad2.Reversed = True

doc.recompute()
